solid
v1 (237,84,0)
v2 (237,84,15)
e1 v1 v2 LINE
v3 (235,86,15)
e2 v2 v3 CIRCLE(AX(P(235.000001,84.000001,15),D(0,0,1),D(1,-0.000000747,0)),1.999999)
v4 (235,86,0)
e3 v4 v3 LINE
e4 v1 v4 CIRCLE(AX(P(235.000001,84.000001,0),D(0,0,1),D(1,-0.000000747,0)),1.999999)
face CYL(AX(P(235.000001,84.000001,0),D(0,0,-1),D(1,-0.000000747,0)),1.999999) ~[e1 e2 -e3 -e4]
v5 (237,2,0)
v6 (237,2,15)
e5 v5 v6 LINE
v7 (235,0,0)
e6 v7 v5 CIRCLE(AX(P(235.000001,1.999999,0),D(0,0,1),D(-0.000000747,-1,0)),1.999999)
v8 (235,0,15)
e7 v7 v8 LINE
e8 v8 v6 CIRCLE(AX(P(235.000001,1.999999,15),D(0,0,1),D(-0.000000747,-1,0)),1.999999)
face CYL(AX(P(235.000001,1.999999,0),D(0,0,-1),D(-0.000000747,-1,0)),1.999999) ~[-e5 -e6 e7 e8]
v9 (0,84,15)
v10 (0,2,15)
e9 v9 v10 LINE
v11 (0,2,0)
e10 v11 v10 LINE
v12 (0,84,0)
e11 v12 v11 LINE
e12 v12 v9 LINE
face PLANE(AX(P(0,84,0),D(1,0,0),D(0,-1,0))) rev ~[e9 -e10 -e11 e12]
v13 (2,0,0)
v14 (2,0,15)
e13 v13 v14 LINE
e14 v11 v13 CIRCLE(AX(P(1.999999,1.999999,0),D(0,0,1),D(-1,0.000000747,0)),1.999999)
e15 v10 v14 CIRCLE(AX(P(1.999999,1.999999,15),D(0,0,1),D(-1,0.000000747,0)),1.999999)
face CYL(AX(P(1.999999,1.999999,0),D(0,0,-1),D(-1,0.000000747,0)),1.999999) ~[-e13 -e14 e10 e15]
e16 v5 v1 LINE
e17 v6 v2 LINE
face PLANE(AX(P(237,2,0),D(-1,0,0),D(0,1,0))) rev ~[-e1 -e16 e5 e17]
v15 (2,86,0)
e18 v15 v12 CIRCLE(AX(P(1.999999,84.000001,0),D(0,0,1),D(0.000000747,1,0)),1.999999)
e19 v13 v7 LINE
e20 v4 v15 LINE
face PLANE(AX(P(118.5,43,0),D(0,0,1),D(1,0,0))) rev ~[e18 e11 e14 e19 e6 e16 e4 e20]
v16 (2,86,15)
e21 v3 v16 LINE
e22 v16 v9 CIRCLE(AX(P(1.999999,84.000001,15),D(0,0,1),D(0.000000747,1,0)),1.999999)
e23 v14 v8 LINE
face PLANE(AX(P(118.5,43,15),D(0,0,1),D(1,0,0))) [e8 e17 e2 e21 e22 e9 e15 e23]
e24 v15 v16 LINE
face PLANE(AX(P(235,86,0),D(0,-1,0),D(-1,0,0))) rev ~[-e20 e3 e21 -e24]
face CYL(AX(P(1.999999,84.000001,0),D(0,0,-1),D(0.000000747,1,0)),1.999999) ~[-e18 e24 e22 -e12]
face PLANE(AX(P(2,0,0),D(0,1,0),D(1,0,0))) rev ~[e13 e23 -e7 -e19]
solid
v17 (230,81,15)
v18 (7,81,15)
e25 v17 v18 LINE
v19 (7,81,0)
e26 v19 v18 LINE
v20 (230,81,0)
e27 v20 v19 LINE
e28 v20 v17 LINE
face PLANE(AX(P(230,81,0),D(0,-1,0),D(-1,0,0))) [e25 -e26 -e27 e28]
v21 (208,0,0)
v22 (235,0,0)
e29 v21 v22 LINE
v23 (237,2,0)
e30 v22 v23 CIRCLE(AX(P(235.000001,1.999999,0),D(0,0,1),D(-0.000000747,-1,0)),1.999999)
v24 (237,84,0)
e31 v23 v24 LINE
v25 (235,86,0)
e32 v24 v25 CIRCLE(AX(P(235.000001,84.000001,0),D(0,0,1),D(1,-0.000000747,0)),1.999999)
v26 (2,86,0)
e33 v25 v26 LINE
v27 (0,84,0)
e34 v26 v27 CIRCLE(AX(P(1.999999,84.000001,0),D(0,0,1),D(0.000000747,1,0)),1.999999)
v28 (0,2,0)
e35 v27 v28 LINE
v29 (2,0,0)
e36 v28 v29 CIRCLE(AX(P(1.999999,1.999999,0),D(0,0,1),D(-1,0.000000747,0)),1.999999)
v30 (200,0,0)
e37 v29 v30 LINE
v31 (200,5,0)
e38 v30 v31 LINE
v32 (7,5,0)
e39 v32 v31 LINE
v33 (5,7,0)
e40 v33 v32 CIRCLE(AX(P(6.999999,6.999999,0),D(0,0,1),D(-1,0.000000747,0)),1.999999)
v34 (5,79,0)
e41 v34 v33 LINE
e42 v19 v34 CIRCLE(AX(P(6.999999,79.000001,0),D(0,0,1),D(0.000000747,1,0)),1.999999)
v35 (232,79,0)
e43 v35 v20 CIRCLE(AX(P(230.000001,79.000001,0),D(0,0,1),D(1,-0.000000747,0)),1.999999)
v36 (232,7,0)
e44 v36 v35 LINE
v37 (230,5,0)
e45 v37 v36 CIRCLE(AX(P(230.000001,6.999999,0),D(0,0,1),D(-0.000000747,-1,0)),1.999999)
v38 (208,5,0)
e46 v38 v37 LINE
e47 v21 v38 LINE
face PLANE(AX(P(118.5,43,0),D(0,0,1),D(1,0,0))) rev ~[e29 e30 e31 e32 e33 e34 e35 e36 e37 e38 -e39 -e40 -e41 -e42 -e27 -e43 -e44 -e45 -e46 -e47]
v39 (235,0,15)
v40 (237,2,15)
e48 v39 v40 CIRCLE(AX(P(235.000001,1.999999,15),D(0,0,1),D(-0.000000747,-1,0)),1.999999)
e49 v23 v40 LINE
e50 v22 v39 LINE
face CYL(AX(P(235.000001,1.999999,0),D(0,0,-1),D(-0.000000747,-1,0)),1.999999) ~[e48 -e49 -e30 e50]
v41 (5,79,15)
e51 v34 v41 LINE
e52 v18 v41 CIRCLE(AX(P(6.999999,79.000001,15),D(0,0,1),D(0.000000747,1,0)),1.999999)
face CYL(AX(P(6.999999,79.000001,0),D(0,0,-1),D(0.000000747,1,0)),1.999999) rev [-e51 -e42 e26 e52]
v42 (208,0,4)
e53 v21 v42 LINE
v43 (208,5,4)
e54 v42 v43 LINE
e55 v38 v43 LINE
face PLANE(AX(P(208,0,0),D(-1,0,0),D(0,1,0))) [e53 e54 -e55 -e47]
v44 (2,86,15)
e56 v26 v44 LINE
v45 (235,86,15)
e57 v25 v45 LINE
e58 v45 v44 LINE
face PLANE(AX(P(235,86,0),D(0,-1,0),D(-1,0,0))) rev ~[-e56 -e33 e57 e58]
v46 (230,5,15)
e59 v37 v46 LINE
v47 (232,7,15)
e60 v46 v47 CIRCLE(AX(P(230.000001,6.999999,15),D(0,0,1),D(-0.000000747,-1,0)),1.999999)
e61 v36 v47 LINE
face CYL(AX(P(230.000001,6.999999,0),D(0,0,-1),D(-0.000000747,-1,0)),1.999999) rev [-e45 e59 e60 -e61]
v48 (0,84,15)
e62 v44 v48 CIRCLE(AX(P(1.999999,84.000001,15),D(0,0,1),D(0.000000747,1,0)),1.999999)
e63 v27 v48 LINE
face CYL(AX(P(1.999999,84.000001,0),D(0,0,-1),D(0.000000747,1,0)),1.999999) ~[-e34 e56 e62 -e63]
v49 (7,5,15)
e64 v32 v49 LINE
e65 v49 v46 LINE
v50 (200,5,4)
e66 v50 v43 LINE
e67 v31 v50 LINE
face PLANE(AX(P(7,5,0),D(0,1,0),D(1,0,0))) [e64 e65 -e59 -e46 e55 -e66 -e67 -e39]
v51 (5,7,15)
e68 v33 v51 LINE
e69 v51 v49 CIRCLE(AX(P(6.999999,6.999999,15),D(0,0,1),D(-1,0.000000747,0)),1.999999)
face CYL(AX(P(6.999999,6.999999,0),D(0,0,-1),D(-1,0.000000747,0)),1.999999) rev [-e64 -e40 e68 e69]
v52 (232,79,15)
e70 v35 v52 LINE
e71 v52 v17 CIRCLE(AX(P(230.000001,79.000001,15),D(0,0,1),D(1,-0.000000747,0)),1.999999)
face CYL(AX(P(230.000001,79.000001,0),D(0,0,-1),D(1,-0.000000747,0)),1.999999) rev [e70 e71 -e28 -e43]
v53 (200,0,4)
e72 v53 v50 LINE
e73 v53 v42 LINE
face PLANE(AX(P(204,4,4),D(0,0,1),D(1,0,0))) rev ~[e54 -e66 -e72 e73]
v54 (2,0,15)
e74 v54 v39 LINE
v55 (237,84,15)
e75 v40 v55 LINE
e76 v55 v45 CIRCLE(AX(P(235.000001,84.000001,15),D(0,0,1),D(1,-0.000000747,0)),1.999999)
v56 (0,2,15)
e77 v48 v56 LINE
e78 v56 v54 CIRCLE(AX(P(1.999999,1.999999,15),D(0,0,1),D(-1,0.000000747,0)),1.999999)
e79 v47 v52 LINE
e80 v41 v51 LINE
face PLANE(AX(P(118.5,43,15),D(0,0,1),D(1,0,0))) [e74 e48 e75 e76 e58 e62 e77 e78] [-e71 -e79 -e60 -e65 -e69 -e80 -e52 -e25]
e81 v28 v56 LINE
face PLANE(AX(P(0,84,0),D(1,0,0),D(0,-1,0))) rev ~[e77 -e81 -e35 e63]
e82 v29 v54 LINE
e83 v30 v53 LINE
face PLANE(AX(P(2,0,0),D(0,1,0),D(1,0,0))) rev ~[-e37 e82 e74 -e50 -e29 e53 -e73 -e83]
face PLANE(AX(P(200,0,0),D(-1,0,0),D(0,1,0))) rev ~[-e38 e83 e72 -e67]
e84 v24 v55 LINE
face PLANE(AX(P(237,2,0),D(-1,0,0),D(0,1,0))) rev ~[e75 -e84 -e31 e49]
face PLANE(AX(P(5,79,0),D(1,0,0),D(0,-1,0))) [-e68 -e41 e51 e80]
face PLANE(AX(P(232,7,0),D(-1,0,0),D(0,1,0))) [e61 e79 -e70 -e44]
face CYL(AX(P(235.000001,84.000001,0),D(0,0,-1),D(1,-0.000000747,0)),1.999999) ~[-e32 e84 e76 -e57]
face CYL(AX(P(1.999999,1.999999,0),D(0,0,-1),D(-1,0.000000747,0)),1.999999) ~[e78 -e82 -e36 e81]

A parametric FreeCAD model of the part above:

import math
import FreeCAD as App
import Part
import Sketcher

V = App.Vector

doc = App.newDocument("Part")
params = doc.addObject("Spreadsheet::Sheet", "Params")
for row, (alias, value) in enumerate([
    ("sketch1_radius", "1.999999 mm"),
    ("sketch1_width", "233 mm"),
    ("sketch1_height", "82 mm"),
    ("pad1_length", "15 mm"),
    ("sketch2_width", "8 mm"),
    ("pad2_length", "4 mm"),
    ("sketch3_radius", "1.999999 mm"),
    ("sketch3_width", "223 mm"),
    ("sketch3_height", "72 mm"),
    ("pad3_length", "15 mm"),
    ("sketch4_radius", "1.999999 mm"),
    ("sketch4_width", "233 mm"),
    ("sketch4_height", "82 mm"),
    ("pad4_length", "15 mm"),
], start=1):
    params.set(f"A{row}", alias)
    params.set(f"B{row}", "=" + value)
    params.setAlias(f"B{row}", alias)

body = doc.addObject("PartDesign::Body", "Body")

sketch1 = doc.addObject("Sketcher::SketchObject", "Sketch")
body.addObject(sketch1)
sketch1.AttachmentSupport = (doc.XY_Plane, [""])
sketch1.MapMode = "FlatFace"
sketch1.addGeometry([
    Part.LineSegment(V(2, 0, 0), V(235, 0, 0)),
    Part.ArcOfCircle(Part.Circle(V(235, 2, 0), V(0, 0, 1), 2), math.radians(-90), math.radians(0)),
    Part.LineSegment(V(237, 2, 0), V(237, 84, 0)),
    Part.ArcOfCircle(Part.Circle(V(235, 84, 0), V(0, 0, 1), 2), math.radians(0), math.radians(90)),
    Part.LineSegment(V(235, 86, 0), V(2, 86, 0)),
    Part.ArcOfCircle(Part.Circle(V(2, 84, 0), V(0, 0, 1), 2), math.radians(90), math.radians(180)),
    Part.LineSegment(V(0, 84, 0), V(0, 2, 0)),
    Part.ArcOfCircle(Part.Circle(V(2, 2, 0), V(0, 0, 1), 2), math.radians(180), math.radians(270)),
], False)
sketch1.addConstraint([
    Sketcher.Constraint("Tangent", 0, 2, 1, 1),
    Sketcher.Constraint("Tangent", 1, 2, 2, 1),
    Sketcher.Constraint("Tangent", 2, 2, 3, 1),
    Sketcher.Constraint("Tangent", 3, 2, 4, 1),
    Sketcher.Constraint("Tangent", 4, 2, 5, 1),
    Sketcher.Constraint("Tangent", 5, 2, 6, 1),
    Sketcher.Constraint("Tangent", 6, 2, 7, 1),
    Sketcher.Constraint("Tangent", 7, 2, 0, 1),
    Sketcher.Constraint("Horizontal", 0),
    Sketcher.Constraint("Vertical", 2),
    Sketcher.Constraint("Horizontal", 4),
    Sketcher.Constraint("Vertical", 6),
    Sketcher.Constraint("Equal", 1, 3),
    Sketcher.Constraint("Equal", 3, 5),
    Sketcher.Constraint("Equal", 5, 7),
    Sketcher.Constraint("PointOnObject", 0, 2, -1),
    Sketcher.Constraint("PointOnObject", 5, 2, -2),
    Sketcher.Constraint("Radius", 1, 1.999999),
    Sketcher.Constraint("DistanceX", 0, 1, 0, 2, 233.0),
    Sketcher.Constraint("DistanceY", 2, 1, 2, 2, 82.0),
])
sketch1.setExpression("Constraints[17]", "Params.sketch1_radius")
sketch1.setExpression("Constraints[18]", "Params.sketch1_width")
sketch1.setExpression("Constraints[19]", "Params.sketch1_height")
pad1 = doc.addObject("PartDesign::Pad", "Pad")
body.addObject(pad1)
pad1.Profile = sketch1
pad1.setExpression("Length", "Params.pad1_length")
body2 = doc.addObject("PartDesign::Body", "Body001")

sketch2 = doc.addObject("Sketcher::SketchObject", "Sketch001")
body2.addObject(sketch2)
sketch2.AttachmentSupport = (doc.getObject("XY_Plane001"), [""])
sketch2.MapMode = "FlatFace"
sketch2.addGeometry([
    Part.LineSegment(V(200, 8, 0), V(200, 0, 0)),
    Part.LineSegment(V(200, 0, 0), V(208, 0, 0)),
    Part.LineSegment(V(208, 0, 0), V(208, 8, 0)),
    Part.LineSegment(V(208, 8, 0), V(200, 8, 0)),
], False)
sketch2.addConstraint([
    Sketcher.Constraint("Coincident", 0, 2, 1, 1),
    Sketcher.Constraint("Coincident", 1, 2, 2, 1),
    Sketcher.Constraint("Coincident", 2, 2, 3, 1),
    Sketcher.Constraint("Coincident", 3, 2, 0, 1),
    Sketcher.Constraint("Vertical", 0),
    Sketcher.Constraint("Horizontal", 1),
    Sketcher.Constraint("Vertical", 2),
    Sketcher.Constraint("Horizontal", 3),
    Sketcher.Constraint("PointOnObject", 0, 2, -1),
    Sketcher.Constraint("Equal", 3, 0),
    Sketcher.Constraint("DistanceX", 1, 1, 1, 2, 8.0),
    Sketcher.Constraint("DistanceX", -1, 1, 0, 2, 200.0),
])
sketch2.setExpression("Constraints[10]", "Params.sketch2_width")
pad2 = doc.addObject("PartDesign::Pad", "Pad001")
body2.addObject(pad2)
pad2.Profile = sketch2
pad2.setExpression("Length", "Params.pad2_length")
body3 = doc.addObject("PartDesign::Body", "Body002")

sketch3 = doc.addObject("Sketcher::SketchObject", "Sketch002")
body3.addObject(sketch3)
sketch3.AttachmentSupport = (doc.getObject("XY_Plane002"), [""])
sketch3.MapMode = "FlatFace"
sketch3.addGeometry([
    Part.LineSegment(V(7, 5, 0), V(230, 5, 0)),
    Part.ArcOfCircle(Part.Circle(V(230, 7, 0), V(0, 0, 1), 2), math.radians(-90), math.radians(0)),
    Part.LineSegment(V(232, 7, 0), V(232, 79, 0)),
    Part.ArcOfCircle(Part.Circle(V(230, 79, 0), V(0, 0, 1), 2), math.radians(0), math.radians(90)),
    Part.LineSegment(V(230, 81, 0), V(7, 81, 0)),
    Part.ArcOfCircle(Part.Circle(V(7, 79, 0), V(0, 0, 1), 2), math.radians(90), math.radians(180)),
    Part.LineSegment(V(5, 79, 0), V(5, 7, 0)),
    Part.ArcOfCircle(Part.Circle(V(7, 7, 0), V(0, 0, 1), 2), math.radians(180), math.radians(270)),
], False)
sketch3.addConstraint([
    Sketcher.Constraint("Tangent", 0, 2, 1, 1),
    Sketcher.Constraint("Tangent", 1, 2, 2, 1),
    Sketcher.Constraint("Tangent", 2, 2, 3, 1),
    Sketcher.Constraint("Tangent", 3, 2, 4, 1),
    Sketcher.Constraint("Tangent", 4, 2, 5, 1),
    Sketcher.Constraint("Tangent", 5, 2, 6, 1),
    Sketcher.Constraint("Tangent", 6, 2, 7, 1),
    Sketcher.Constraint("Tangent", 7, 2, 0, 1),
    Sketcher.Constraint("Horizontal", 0),
    Sketcher.Constraint("Vertical", 2),
    Sketcher.Constraint("Horizontal", 4),
    Sketcher.Constraint("Vertical", 6),
    Sketcher.Constraint("Equal", 1, 3),
    Sketcher.Constraint("Equal", 3, 5),
    Sketcher.Constraint("Equal", 5, 7),
    Sketcher.Constraint("Radius", 1, 1.999999),
    Sketcher.Constraint("DistanceX", 0, 1, 0, 2, 223.0),
    Sketcher.Constraint("DistanceY", 2, 1, 2, 2, 72.0),
    Sketcher.Constraint("DistanceX", -1, 1, 1, 3, 230.000001),
    Sketcher.Constraint("DistanceY", -1, 1, 1, 3, 6.999999),
])
sketch3.setExpression("Constraints[15]", "Params.sketch3_radius")
sketch3.setExpression("Constraints[16]", "Params.sketch3_width")
sketch3.setExpression("Constraints[17]", "Params.sketch3_height")
pad3 = doc.addObject("PartDesign::Pad", "Pad002")
body3.addObject(pad3)
pad3.Profile = sketch3
pad3.setExpression("Length", "Params.pad3_length")
body4 = doc.addObject("PartDesign::Body", "Body003")

sketch4 = doc.addObject("Sketcher::SketchObject", "Sketch003")
body4.addObject(sketch4)
sketch4.AttachmentSupport = (doc.getObject("XY_Plane003"), [""])
sketch4.MapMode = "FlatFace"
sketch4.addGeometry([
    Part.LineSegment(V(2, 0, 0), V(235, 0, 0)),
    Part.ArcOfCircle(Part.Circle(V(235, 2, 0), V(0, 0, 1), 2), math.radians(-90), math.radians(0)),
    Part.LineSegment(V(237, 2, 0), V(237, 84, 0)),
    Part.ArcOfCircle(Part.Circle(V(235, 84, 0), V(0, 0, 1), 2), math.radians(0), math.radians(90)),
    Part.LineSegment(V(235, 86, 0), V(2, 86, 0)),
    Part.ArcOfCircle(Part.Circle(V(2, 84, 0), V(0, 0, 1), 2), math.radians(90), math.radians(180)),
    Part.LineSegment(V(0, 84, 0), V(0, 2, 0)),
    Part.ArcOfCircle(Part.Circle(V(2, 2, 0), V(0, 0, 1), 2), math.radians(180), math.radians(270)),
], False)
sketch4.addConstraint([
    Sketcher.Constraint("Tangent", 0, 2, 1, 1),
    Sketcher.Constraint("Tangent", 1, 2, 2, 1),
    Sketcher.Constraint("Tangent", 2, 2, 3, 1),
    Sketcher.Constraint("Tangent", 3, 2, 4, 1),
    Sketcher.Constraint("Tangent", 4, 2, 5, 1),
    Sketcher.Constraint("Tangent", 5, 2, 6, 1),
    Sketcher.Constraint("Tangent", 6, 2, 7, 1),
    Sketcher.Constraint("Tangent", 7, 2, 0, 1),
    Sketcher.Constraint("Horizontal", 0),
    Sketcher.Constraint("Vertical", 2),
    Sketcher.Constraint("Horizontal", 4),
    Sketcher.Constraint("Vertical", 6),
    Sketcher.Constraint("Equal", 1, 3),
    Sketcher.Constraint("Equal", 3, 5),
    Sketcher.Constraint("Equal", 5, 7),
    Sketcher.Constraint("PointOnObject", 0, 2, -1),
    Sketcher.Constraint("PointOnObject", 5, 2, -2),
    Sketcher.Constraint("Radius", 1, 1.999999),
    Sketcher.Constraint("DistanceX", 0, 1, 0, 2, 233.0),
    Sketcher.Constraint("DistanceY", 2, 1, 2, 2, 82.0),
])
sketch4.setExpression("Constraints[17]", "Params.sketch4_radius")
sketch4.setExpression("Constraints[18]", "Params.sketch4_width")
sketch4.setExpression("Constraints[19]", "Params.sketch4_height")
pad4 = doc.addObject("PartDesign::Pad", "Pad003")
body4.addObject(pad4)
pad4.Profile = sketch4
pad4.setExpression("Length", "Params.pad4_length")
doc.recompute()

boolean = doc.addObject("PartDesign::Boolean", "Boolean")
body4.addObject(boolean)
boolean.Type = "Cut"
boolean.addObjects([body3])
doc.recompute()

boolean2 = doc.addObject("PartDesign::Boolean", "Boolean001")
body4.addObject(boolean2)
boolean2.Type = "Cut"
boolean2.addObjects([body2])

doc.recompute()
